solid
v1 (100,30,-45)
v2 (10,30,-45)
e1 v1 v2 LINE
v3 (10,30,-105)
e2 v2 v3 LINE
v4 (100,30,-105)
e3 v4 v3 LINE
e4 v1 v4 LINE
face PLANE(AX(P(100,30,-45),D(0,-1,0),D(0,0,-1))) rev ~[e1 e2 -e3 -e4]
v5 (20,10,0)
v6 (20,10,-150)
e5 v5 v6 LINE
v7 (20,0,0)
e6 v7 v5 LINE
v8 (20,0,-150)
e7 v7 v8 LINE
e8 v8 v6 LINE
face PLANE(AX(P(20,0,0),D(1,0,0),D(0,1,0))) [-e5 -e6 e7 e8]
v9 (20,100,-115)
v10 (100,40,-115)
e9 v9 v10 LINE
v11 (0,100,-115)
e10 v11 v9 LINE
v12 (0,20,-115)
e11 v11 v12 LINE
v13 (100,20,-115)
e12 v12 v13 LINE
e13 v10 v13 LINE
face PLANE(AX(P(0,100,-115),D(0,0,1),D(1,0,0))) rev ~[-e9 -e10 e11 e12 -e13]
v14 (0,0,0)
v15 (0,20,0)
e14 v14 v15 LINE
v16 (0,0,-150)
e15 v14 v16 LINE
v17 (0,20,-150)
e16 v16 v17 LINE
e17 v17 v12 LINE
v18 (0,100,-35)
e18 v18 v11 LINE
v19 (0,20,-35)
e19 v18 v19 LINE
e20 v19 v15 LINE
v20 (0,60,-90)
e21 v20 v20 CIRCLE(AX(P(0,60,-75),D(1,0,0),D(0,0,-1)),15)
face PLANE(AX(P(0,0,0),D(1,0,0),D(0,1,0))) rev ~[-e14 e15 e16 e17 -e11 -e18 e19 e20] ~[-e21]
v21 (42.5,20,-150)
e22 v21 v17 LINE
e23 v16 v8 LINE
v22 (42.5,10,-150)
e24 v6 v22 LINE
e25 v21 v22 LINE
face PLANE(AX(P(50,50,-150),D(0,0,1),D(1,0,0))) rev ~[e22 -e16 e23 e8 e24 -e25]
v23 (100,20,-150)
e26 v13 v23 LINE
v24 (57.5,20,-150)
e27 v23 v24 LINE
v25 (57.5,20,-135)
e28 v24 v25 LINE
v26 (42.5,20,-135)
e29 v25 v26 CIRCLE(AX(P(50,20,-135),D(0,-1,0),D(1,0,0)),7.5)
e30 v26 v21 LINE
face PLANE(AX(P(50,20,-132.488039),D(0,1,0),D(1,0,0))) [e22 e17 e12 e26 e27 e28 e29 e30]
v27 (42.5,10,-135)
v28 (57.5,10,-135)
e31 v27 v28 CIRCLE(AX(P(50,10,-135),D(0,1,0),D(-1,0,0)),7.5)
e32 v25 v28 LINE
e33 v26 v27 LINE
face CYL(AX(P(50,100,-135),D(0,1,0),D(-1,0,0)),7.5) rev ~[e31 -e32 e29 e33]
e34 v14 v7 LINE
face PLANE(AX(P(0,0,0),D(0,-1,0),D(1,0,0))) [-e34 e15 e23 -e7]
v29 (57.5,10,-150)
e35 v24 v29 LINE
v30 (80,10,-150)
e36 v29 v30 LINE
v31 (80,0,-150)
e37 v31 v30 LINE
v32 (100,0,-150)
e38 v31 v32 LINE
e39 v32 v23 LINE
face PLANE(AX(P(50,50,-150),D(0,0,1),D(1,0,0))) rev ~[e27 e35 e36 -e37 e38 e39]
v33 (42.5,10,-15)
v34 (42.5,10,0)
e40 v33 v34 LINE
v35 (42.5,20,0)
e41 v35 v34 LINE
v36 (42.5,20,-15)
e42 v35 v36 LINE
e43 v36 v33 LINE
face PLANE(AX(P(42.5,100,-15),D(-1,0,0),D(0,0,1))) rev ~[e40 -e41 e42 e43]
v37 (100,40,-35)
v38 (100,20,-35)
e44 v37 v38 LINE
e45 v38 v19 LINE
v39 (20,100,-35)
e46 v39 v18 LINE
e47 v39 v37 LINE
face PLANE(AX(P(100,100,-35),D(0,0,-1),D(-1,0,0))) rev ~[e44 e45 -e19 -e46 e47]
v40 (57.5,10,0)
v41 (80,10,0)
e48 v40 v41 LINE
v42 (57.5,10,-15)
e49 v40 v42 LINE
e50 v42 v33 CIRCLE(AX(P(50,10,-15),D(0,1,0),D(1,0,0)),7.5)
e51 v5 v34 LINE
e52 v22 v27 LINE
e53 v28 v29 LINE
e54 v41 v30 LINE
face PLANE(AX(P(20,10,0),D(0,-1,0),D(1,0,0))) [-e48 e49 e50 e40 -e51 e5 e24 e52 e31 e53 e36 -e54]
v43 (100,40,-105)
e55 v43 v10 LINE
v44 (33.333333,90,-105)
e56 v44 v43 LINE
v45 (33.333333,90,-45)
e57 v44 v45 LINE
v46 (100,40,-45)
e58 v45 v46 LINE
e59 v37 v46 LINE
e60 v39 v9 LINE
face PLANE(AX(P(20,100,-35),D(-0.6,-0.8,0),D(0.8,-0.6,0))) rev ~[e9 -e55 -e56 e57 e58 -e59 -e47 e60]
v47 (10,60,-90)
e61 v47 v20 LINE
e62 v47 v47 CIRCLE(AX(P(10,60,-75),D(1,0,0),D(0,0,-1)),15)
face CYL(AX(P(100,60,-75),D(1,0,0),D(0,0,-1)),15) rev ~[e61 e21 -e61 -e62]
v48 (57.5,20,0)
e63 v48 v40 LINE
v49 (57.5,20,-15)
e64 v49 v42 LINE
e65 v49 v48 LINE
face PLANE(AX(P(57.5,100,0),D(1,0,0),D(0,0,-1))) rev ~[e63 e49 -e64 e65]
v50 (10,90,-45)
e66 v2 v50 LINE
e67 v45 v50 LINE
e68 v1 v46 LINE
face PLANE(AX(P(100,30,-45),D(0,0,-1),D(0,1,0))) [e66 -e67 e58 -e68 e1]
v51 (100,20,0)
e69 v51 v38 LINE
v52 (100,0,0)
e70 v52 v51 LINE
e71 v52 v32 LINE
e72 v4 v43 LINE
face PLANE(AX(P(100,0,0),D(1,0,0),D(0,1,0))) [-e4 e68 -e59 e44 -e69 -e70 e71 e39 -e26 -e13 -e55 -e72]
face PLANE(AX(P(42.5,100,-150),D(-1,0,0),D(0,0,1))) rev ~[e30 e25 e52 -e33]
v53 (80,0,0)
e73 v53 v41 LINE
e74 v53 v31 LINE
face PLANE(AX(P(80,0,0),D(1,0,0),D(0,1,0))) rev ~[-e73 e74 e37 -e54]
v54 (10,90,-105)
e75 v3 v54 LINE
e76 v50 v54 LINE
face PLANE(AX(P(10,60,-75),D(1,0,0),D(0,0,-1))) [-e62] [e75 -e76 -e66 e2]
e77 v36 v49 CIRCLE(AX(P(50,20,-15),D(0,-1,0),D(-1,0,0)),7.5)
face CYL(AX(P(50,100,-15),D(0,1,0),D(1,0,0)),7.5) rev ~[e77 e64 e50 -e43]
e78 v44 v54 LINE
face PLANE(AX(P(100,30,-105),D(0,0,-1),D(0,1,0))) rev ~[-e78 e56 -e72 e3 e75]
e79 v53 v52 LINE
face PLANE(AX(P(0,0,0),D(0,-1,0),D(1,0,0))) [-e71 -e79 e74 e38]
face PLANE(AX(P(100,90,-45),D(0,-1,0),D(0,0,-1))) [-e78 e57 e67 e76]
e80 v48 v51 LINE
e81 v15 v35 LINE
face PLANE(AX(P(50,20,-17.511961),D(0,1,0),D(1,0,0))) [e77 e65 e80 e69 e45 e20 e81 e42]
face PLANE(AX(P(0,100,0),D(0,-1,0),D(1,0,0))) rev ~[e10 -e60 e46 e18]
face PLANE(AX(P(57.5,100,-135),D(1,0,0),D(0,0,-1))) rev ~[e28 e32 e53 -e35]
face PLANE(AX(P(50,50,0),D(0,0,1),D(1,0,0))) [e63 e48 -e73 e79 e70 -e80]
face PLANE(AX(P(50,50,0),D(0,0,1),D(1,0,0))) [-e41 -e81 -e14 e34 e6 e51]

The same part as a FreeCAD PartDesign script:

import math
import FreeCAD as App
import Part
import Sketcher
from FreeCAD import Vector
Q = App.Units.Quantity


def add_polygon(sketch, points):
    """Adds a closed chain of lines whose ends are joined by coincident constraints."""
    first, n = sketch.GeometryCount, len(points)
    for a, b in zip(points, points[1:] + points[:1]):
        sketch.addGeometry(Part.LineSegment(App.Vector(*a, 0), App.Vector(*b, 0)), False)
    for i in range(n):
        sketch.addConstraint(Sketcher.Constraint("Coincident", first + i, 2, first + (i + 1) % n, 1))

doc = App.newDocument("Part")
body = doc.addObject("PartDesign::Body", "Body")

sketch1 = body.newObject("Sketcher::SketchObject", "Sketch")
sketch1.AttachmentSupport = (doc.getObject("XY_Plane"), [""])
sketch1.MapMode = "FlatFace"
add_polygon(sketch1, [(0, 100), (0, 0), (100, 0), (100, 100)])
sketch1.addConstraint(Sketcher.Constraint("Vertical", 0))
sketch1.addConstraint(Sketcher.Constraint("Horizontal", 1))
sketch1.addConstraint(Sketcher.Constraint("Vertical", 2))
sketch1.addConstraint(Sketcher.Constraint("Horizontal", 3))
sketch1.addConstraint(Sketcher.Constraint("Coincident", 0, 2, -1, 1))
sketch1.addConstraint(Sketcher.Constraint("Equal", 3, 0))
sketch1.addConstraint(Sketcher.Constraint("DistanceX", 1, 1, 1, 2, Q("100 mm")))
pad1 = body.newObject("PartDesign::Pad", "Pad")
pad1.Profile = sketch1
pad1.Length = 150
pad1.Reversed = True

sketch2 = body.newObject("Sketcher::SketchObject", "Sketch001")
sketch2.AttachmentSupport = (doc.getObject("XZ_Plane"), [""])
sketch2.MapMode = "FlatFace"
sketch2.AttachmentOffset = App.Placement(Vector(0, 0, -100), App.Rotation())
sketch2.addGeometry(Part.LineSegment(Vector(100, -35, 0), Vector(0, -35, 0)), False)
sketch2.addGeometry(Part.LineSegment(Vector(0, -35, 0), Vector(0, 0, 0)), False)
sketch2.addGeometry(Part.LineSegment(Vector(0, 0, 0), Vector(42, 0, 0)), False)
sketch2.addGeometry(Part.LineSegment(Vector(42, 0, 0), Vector(42, -15, 0)), False)
sketch2.addGeometry(Part.ArcOfCircle(Part.Circle(Vector(50, -15, 0), Vector(0, 0, 1), 8), math.radians(180), math.radians(360)), False)
sketch2.addGeometry(Part.LineSegment(Vector(58, -15, 0), Vector(58, 0, 0)), False)
sketch2.addGeometry(Part.LineSegment(Vector(58, 0, 0), Vector(100, 0, 0)), False)
sketch2.addGeometry(Part.LineSegment(Vector(100, 0, 0), Vector(100, -35, 0)), False)
sketch2.addGeometry(Part.ArcOfCircle(Part.Circle(Vector(50, -135, 0), Vector(0, 0, 1), 8), math.radians(0), math.radians(180)), False)
sketch2.addGeometry(Part.LineSegment(Vector(42, -135, 0), Vector(42, -150, 0)), False)
sketch2.addGeometry(Part.LineSegment(Vector(42, -150, 0), Vector(0, -150, 0)), False)
sketch2.addGeometry(Part.LineSegment(Vector(0, -150, 0), Vector(0, -115, 0)), False)
sketch2.addGeometry(Part.LineSegment(Vector(0, -115, 0), Vector(100, -115, 0)), False)
sketch2.addGeometry(Part.LineSegment(Vector(100, -115, 0), Vector(100, -150, 0)), False)
sketch2.addGeometry(Part.LineSegment(Vector(100, -150, 0), Vector(58, -150, 0)), False)
sketch2.addGeometry(Part.LineSegment(Vector(58, -150, 0), Vector(58, -135, 0)), False)
sketch2.addConstraint(Sketcher.Constraint("Coincident", 0, 2, 1, 1))
sketch2.addConstraint(Sketcher.Constraint("Coincident", 1, 2, 2, 1))
sketch2.addConstraint(Sketcher.Constraint("Coincident", 2, 2, 3, 1))
sketch2.addConstraint(Sketcher.Constraint("Tangent", 3, 2, 4, 1))
sketch2.addConstraint(Sketcher.Constraint("Tangent", 4, 2, 5, 1))
sketch2.addConstraint(Sketcher.Constraint("Coincident", 5, 2, 6, 1))
sketch2.addConstraint(Sketcher.Constraint("Coincident", 6, 2, 7, 1))
sketch2.addConstraint(Sketcher.Constraint("Coincident", 7, 2, 0, 1))
sketch2.addConstraint(Sketcher.Constraint("Tangent", 8, 2, 9, 1))
sketch2.addConstraint(Sketcher.Constraint("Coincident", 9, 2, 10, 1))
sketch2.addConstraint(Sketcher.Constraint("Coincident", 10, 2, 11, 1))
sketch2.addConstraint(Sketcher.Constraint("Coincident", 11, 2, 12, 1))
sketch2.addConstraint(Sketcher.Constraint("Coincident", 12, 2, 13, 1))
sketch2.addConstraint(Sketcher.Constraint("Coincident", 13, 2, 14, 1))
sketch2.addConstraint(Sketcher.Constraint("Coincident", 14, 2, 15, 1))
sketch2.addConstraint(Sketcher.Constraint("Tangent", 15, 2, 8, 1))
sketch2.addConstraint(Sketcher.Constraint("Horizontal", 0))
sketch2.addConstraint(Sketcher.Constraint("Vertical", 1))
sketch2.addConstraint(Sketcher.Constraint("Horizontal", 2))
sketch2.addConstraint(Sketcher.Constraint("Vertical", 3))
sketch2.addConstraint(Sketcher.Constraint("Vertical", 5))
sketch2.addConstraint(Sketcher.Constraint("Horizontal", 6))
sketch2.addConstraint(Sketcher.Constraint("Vertical", 7))
sketch2.addConstraint(Sketcher.Constraint("Vertical", 9))
sketch2.addConstraint(Sketcher.Constraint("Horizontal", 10))
sketch2.addConstraint(Sketcher.Constraint("Vertical", 11))
sketch2.addConstraint(Sketcher.Constraint("Horizontal", 12))
sketch2.addConstraint(Sketcher.Constraint("Vertical", 13))
sketch2.addConstraint(Sketcher.Constraint("Horizontal", 14))
sketch2.addConstraint(Sketcher.Constraint("Vertical", 15))
sketch2.addConstraint(Sketcher.Constraint("Coincident", 1, 2, -1, 1))
sketch2.addConstraint(Sketcher.Constraint("Equal", 4, 8))
sketch2.addConstraint(Sketcher.Constraint("PointOnObject", 5, 2, -1))
sketch2.addConstraint(Sketcher.Constraint("PointOnObject", 10, 2, -2))
sketch2.addConstraint(Sketcher.Constraint("Horizontal", 10, 2, 13, 2))
sketch2.addConstraint(Sketcher.Constraint("Vertical", 4, 3, 8, 3))
sketch2.addConstraint(Sketcher.Constraint("Vertical", 7, 2, 12, 2))
sketch2.addConstraint(Sketcher.Constraint("Equal", 2, 6))
sketch2.addConstraint(Sketcher.Constraint("Equal", 5, 9))
sketch2.addConstraint(Sketcher.Constraint("Equal", 7, 11))
sketch2.addConstraint(Sketcher.Constraint("Radius", 4, Q("7.5 mm")))
sketch2.addConstraint(Sketcher.Constraint("DistanceX", 0, 2, 0, 1, Q("100 mm")))
sketch2.addConstraint(Sketcher.Constraint("DistanceY", 1, 1, 1, 2, Q("35 mm")))
sketch2.addConstraint(Sketcher.Constraint("DistanceY", 3, 2, 3, 1, Q("15 mm")))
sketch2.addConstraint(Sketcher.Constraint("DistanceY", 8, 3, -1, 1, Q("135 mm")))
pocket1 = body.newObject("PartDesign::Pocket", "Pocket")
pocket1.Profile = sketch2
pocket1.Length = 80
pocket1.Reversed = True

sketch3 = body.newObject("Sketcher::SketchObject", "Sketch002")
sketch3.AttachmentSupport = (doc.getObject("XZ_Plane"), [""])
sketch3.MapMode = "FlatFace"
sketch3.AttachmentOffset = App.Placement(Vector(0, 0, -100), App.Rotation())
sketch3.addGeometry(Part.LineSegment(Vector(58, 0, 0), Vector(58, -15, 0)), False)
sketch3.addGeometry(Part.ArcOfCircle(Part.Circle(Vector(50, -15, 0), Vector(0, 0, 1), 8), math.radians(180), math.radians(360)), False)
sketch3.addGeometry(Part.LineSegment(Vector(42, -15, 0), Vector(42, 0, 0)), False)
sketch3.addGeometry(Part.LineSegment(Vector(42, 0, 0), Vector(58, 0, 0)), False)
sketch3.addGeometry(Part.LineSegment(Vector(42, -150, 0), Vector(42, -135, 0)), False)
sketch3.addGeometry(Part.ArcOfCircle(Part.Circle(Vector(50, -135, 0), Vector(0, 0, 1), 8), math.radians(0), math.radians(180)), False)
sketch3.addGeometry(Part.LineSegment(Vector(58, -135, 0), Vector(58, -150, 0)), False)
sketch3.addGeometry(Part.LineSegment(Vector(58, -150, 0), Vector(42, -150, 0)), False)
sketch3.addConstraint(Sketcher.Constraint("Tangent", 0, 2, 1, 2))
sketch3.addConstraint(Sketcher.Constraint("Tangent", 1, 1, 2, 1))
sketch3.addConstraint(Sketcher.Constraint("Coincident", 2, 2, 3, 1))
sketch3.addConstraint(Sketcher.Constraint("Coincident", 3, 2, 0, 1))
sketch3.addConstraint(Sketcher.Constraint("Tangent", 4, 2, 5, 2))
sketch3.addConstraint(Sketcher.Constraint("Tangent", 5, 1, 6, 1))
sketch3.addConstraint(Sketcher.Constraint("Coincident", 6, 2, 7, 1))
sketch3.addConstraint(Sketcher.Constraint("Coincident", 7, 2, 4, 1))
sketch3.addConstraint(Sketcher.Constraint("Vertical", 0))
sketch3.addConstraint(Sketcher.Constraint("Vertical", 2))
sketch3.addConstraint(Sketcher.Constraint("Horizontal", 3))
sketch3.addConstraint(Sketcher.Constraint("Vertical", 4))
sketch3.addConstraint(Sketcher.Constraint("Vertical", 6))
sketch3.addConstraint(Sketcher.Constraint("Horizontal", 7))
sketch3.addConstraint(Sketcher.Constraint("Equal", 1, 5))
sketch3.addConstraint(Sketcher.Constraint("PointOnObject", 2, 2, -1))
sketch3.addConstraint(Sketcher.Constraint("Vertical", 1, 3, 5, 3))
sketch3.addConstraint(Sketcher.Constraint("Equal", 7, 0))
sketch3.addConstraint(Sketcher.Constraint("Equal", 2, 4))
sketch3.addConstraint(Sketcher.Constraint("Radius", 1, Q("7.5 mm")))
sketch3.addConstraint(Sketcher.Constraint("DistanceX", -1, 1, 1, 3, Q("50 mm")))
sketch3.addConstraint(Sketcher.Constraint("DistanceY", 5, 3, -1, 1, Q("135 mm")))
pocket2 = body.newObject("PartDesign::Pocket", "Pocket001")
pocket2.Profile = sketch3
pocket2.Length = 103
pocket2.Reversed = True

sketch4 = body.newObject("Sketcher::SketchObject", "Sketch003")
sketch4.AttachmentSupport = (doc.getObject("XY_Plane"), [""])
sketch4.MapMode = "FlatFace"
add_polygon(sketch4, [(20, 10), (20, 0), (80, 0), (80, 10)])
sketch4.addConstraint(Sketcher.Constraint("Vertical", 0))
sketch4.addConstraint(Sketcher.Constraint("Horizontal", 1))
sketch4.addConstraint(Sketcher.Constraint("Vertical", 2))
sketch4.addConstraint(Sketcher.Constraint("Horizontal", 3))
sketch4.addConstraint(Sketcher.Constraint("PointOnObject", 0, 2, -1))
sketch4.addConstraint(Sketcher.Constraint("DistanceX", 1, 1, 1, 2, Q("60 mm")))
sketch4.addConstraint(Sketcher.Constraint("DistanceY", 0, 2, 0, 1, Q("10 mm")))
sketch4.addConstraint(Sketcher.Constraint("DistanceX", -1, 1, 0, 2, Q("20 mm")))
pocket3 = body.newObject("PartDesign::Pocket", "Pocket002")
pocket3.Profile = sketch4
pocket3.Length = 178

sketch5 = body.newObject("Sketcher::SketchObject", "Sketch004")
sketch5.AttachmentSupport = (doc.getObject("XY_Plane"), [""])
sketch5.MapMode = "FlatFace"
sketch5.AttachmentOffset = App.Placement(Vector(0, 0, -35), App.Rotation())
add_polygon(sketch5, [(100, 100), (20, 100), (100, 40)])
sketch5.addConstraint(Sketcher.Constraint("Horizontal", 0))
sketch5.addConstraint(Sketcher.Constraint("Vertical", 2))
sketch5.addConstraint(Sketcher.Constraint("DistanceX", 0, 2, 0, 1, Q("80 mm")))
sketch5.addConstraint(Sketcher.Constraint("DistanceY", 2, 1, 2, 2, Q("60 mm")))
sketch5.addConstraint(Sketcher.Constraint("DistanceX", -1, 1, 0, 2, Q("20 mm")))
sketch5.addConstraint(Sketcher.Constraint("DistanceY", -1, 1, 0, 2, Q("100 mm")))
pocket4 = body.newObject("PartDesign::Pocket", "Pocket003")
pocket4.Profile = sketch5
pocket4.Length = 81

sketch6 = body.newObject("Sketcher::SketchObject", "Sketch005")
sketch6.AttachmentSupport = (doc.getObject("YZ_Plane"), [""])
sketch6.MapMode = "FlatFace"
sketch6.AttachmentOffset = App.Placement(Vector(0, 0, 100), App.Rotation())
add_polygon(sketch6, [(90, -45), (30, -45), (30, -105), (90, -105)])
sketch6.addGeometry(Part.Circle(Vector(60, -75, 0), Vector(0, 0, 1), 15), False)
sketch6.addConstraint(Sketcher.Constraint("Horizontal", 0))
sketch6.addConstraint(Sketcher.Constraint("Vertical", 1))
sketch6.addConstraint(Sketcher.Constraint("Horizontal", 2))
sketch6.addConstraint(Sketcher.Constraint("Vertical", 3))
sketch6.addConstraint(Sketcher.Constraint("Equal", 2, 1))
sketch6.addConstraint(Sketcher.Constraint("Diameter", 4, Q("30 mm")))
sketch6.addConstraint(Sketcher.Constraint("DistanceX", 0, 2, 0, 1, Q("60 mm")))
sketch6.addConstraint(Sketcher.Constraint("DistanceX", -1, 1, 4, 3, Q("60 mm")))
sketch6.addConstraint(Sketcher.Constraint("DistanceY", 4, 3, -1, 1, Q("75 mm")))
sketch6.addConstraint(Sketcher.Constraint("DistanceX", -1, 1, 0, 2, Q("30 mm")))
sketch6.addConstraint(Sketcher.Constraint("DistanceY", 0, 2, -1, 1, Q("45 mm")))
pocket5 = body.newObject("PartDesign::Pocket", "Pocket004")
pocket5.Profile = sketch6
pocket5.Length = 90

sketch7 = body.newObject("Sketcher::SketchObject", "Sketch006")
sketch7.AttachmentSupport = (doc.getObject("YZ_Plane"), [""])
sketch7.MapMode = "FlatFace"
sketch7.AttachmentOffset = App.Placement(Vector(0, 0, 100), App.Rotation())
sketch7.addGeometry(Part.Circle(Vector(60, -75, 0), Vector(0, 0, 1), 15), False)
sketch7.addConstraint(Sketcher.Constraint("Diameter", 0, Q("30 mm")))
sketch7.addConstraint(Sketcher.Constraint("DistanceX", -1, 1, 0, 3, Q("60 mm")))
sketch7.addConstraint(Sketcher.Constraint("DistanceY", 0, 3, -1, 1, Q("75 mm")))
pocket6 = body.newObject("PartDesign::Pocket", "Pocket005")
pocket6.Profile = sketch7
pocket6.Length = 128

doc.recompute()
